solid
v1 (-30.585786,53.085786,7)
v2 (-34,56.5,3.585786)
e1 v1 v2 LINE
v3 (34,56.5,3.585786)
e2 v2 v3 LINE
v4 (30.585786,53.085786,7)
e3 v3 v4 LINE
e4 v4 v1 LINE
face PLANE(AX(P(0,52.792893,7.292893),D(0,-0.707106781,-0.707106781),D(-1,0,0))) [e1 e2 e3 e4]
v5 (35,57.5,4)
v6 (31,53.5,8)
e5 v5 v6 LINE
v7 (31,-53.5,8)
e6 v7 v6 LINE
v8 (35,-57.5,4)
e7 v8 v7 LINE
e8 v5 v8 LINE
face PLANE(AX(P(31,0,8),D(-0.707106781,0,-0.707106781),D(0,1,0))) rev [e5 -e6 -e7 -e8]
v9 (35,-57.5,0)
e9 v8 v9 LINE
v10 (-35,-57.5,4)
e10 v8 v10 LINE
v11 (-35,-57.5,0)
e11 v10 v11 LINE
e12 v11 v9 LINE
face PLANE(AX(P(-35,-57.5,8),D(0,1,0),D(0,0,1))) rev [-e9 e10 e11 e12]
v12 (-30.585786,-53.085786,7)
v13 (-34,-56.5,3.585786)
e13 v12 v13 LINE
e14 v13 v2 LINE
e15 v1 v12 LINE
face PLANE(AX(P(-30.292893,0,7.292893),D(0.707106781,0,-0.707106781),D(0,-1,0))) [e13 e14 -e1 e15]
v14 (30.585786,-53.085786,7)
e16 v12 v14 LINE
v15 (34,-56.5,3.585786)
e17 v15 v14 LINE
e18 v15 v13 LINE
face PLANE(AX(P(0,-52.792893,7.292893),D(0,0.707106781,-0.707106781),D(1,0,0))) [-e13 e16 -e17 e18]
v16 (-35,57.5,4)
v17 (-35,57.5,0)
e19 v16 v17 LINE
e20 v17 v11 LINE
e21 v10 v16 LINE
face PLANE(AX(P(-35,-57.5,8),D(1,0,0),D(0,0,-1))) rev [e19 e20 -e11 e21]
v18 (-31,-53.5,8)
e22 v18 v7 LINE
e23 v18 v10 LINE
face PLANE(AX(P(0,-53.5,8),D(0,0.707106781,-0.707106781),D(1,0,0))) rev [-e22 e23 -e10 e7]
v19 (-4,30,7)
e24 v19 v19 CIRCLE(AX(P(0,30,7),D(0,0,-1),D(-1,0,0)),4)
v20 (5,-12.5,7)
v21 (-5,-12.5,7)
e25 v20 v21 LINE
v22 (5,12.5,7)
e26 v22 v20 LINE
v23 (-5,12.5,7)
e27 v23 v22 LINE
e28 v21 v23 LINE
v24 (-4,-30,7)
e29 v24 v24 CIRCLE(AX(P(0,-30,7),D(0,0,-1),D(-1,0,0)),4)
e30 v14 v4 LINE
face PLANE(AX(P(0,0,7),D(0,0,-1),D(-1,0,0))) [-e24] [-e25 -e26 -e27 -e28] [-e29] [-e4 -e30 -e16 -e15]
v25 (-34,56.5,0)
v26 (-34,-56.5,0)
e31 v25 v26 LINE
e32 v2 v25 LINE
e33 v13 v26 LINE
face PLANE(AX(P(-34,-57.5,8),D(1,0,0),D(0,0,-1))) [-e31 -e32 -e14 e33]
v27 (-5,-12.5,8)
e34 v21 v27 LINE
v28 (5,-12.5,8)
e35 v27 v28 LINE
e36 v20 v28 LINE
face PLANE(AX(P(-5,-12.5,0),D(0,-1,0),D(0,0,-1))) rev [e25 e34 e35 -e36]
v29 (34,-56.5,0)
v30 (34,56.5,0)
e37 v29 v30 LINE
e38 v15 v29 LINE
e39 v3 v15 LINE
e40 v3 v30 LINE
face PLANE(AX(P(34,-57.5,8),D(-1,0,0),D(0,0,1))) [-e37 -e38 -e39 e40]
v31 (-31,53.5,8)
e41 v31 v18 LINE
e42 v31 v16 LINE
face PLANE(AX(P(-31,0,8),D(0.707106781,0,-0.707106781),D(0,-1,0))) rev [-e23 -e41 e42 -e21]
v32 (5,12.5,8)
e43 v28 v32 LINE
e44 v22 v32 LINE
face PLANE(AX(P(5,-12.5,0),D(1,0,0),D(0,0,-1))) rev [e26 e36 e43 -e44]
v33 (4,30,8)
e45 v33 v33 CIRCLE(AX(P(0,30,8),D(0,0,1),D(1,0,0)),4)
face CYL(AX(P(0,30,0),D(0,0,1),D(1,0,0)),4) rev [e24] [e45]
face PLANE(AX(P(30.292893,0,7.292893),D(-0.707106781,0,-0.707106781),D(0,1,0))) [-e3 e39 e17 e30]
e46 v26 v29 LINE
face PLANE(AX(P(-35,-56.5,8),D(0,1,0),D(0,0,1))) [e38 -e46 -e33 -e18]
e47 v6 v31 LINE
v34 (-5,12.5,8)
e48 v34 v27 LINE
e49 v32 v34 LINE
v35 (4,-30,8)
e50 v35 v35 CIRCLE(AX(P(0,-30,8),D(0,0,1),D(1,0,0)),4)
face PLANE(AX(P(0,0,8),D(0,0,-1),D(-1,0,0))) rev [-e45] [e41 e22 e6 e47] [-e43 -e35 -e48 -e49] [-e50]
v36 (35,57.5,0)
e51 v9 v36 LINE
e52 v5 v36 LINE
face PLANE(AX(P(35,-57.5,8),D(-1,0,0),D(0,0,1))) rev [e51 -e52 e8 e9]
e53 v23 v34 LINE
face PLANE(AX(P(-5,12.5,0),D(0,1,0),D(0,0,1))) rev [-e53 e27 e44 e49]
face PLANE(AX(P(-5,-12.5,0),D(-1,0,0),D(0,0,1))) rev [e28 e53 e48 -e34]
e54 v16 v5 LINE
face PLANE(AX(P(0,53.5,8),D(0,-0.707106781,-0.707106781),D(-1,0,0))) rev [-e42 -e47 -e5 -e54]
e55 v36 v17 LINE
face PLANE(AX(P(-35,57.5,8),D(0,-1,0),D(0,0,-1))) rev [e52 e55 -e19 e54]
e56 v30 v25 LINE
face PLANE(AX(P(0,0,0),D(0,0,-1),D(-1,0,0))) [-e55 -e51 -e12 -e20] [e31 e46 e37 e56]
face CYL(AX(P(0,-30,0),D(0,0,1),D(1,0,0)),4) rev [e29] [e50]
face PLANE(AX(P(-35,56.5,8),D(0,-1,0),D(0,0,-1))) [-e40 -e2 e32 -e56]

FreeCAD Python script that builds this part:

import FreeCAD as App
import Part
import Sketcher
Q = App.Units.Quantity


def edges_at(feature, points):
    """Names of the edges that pass closest to the given points."""
    edges = feature.Shape.Edges
    near = lambda p: min(range(len(edges)), key=lambda i: edges[i].distToShape(Part.Vertex(*p))[0])
    return sorted({f"Edge{near(p) + 1}" for p in points})


def faces_at(feature, points):
    """Names of the faces that lie closest to the given points."""
    faces = feature.Shape.Faces
    near = lambda p: min(range(len(faces)), key=lambda i: faces[i].distToShape(Part.Vertex(*p))[0])
    return sorted({f"Face{near(p) + 1}" for p in points})


def add_polygon(sketch, points):
    """Adds a closed chain of lines whose ends are joined by coincident constraints."""
    first, n = sketch.GeometryCount, len(points)
    for a, b in zip(points, points[1:] + points[:1]):
        sketch.addGeometry(Part.LineSegment(App.Vector(*a, 0), App.Vector(*b, 0)), False)
    for i in range(n):
        sketch.addConstraint(Sketcher.Constraint("Coincident", first + i, 2, first + (i + 1) % n, 1))

doc = App.newDocument("Part")
body = doc.addObject("PartDesign::Body", "Body")

# Sketch on XY plane
sketch1 = doc.addObject("Sketcher::SketchObject", "Sketch")
body.addObject(sketch1)
sketch1.AttachmentSupport = (doc.XY_Plane, [""])
sketch1.MapMode = "FlatFace"
add_polygon(sketch1, [(-35, 57.5), (-35, -57.5), (35, -57.5), (35, 57.5)])  # lines 0-3
sketch1.addConstraint(Sketcher.Constraint("Vertical", 0))
sketch1.addConstraint(Sketcher.Constraint("Horizontal", 1))
sketch1.addConstraint(Sketcher.Constraint("Vertical", 2))
sketch1.addConstraint(Sketcher.Constraint("Horizontal", 3))
sketch1.addConstraint(Sketcher.Constraint("Symmetric", 0, 2, 2, 2, -1, 1))
sketch1.addConstraint(Sketcher.Constraint("DistanceX", 1, 1, 1, 2, Q("70 mm")))
sketch1.addConstraint(Sketcher.Constraint("DistanceY", 0, 2, 0, 1, Q("115 mm")))
pad1 = doc.addObject("PartDesign::Pad", "Pad")
body.addObject(pad1)
pad1.Profile = sketch1
pad1.Length = 8
doc.recompute()

chamfer = doc.addObject("PartDesign::Chamfer", "Chamfer")
body.addObject(chamfer)
chamfer.Base = (pad1, edges_at(pad1, [
    (-35, 0, 8),
    (0, -57.5, 8),
    (35, 0, 8),
    (0, 57.5, 8),
]))
chamfer.Size = 4
doc.recompute()

thickness = doc.addObject("PartDesign::Thickness", "Thickness")
body.addObject(thickness)
thickness.Base = (chamfer, faces_at(chamfer, [(0, 0, 0)]))
thickness.Value = 1
thickness.Reversed = True
thickness.Join = "Intersection"

# Sketch on XY plane
sketch2 = doc.addObject("Sketcher::SketchObject", "Sketch001")
body.addObject(sketch2)
sketch2.AttachmentSupport = (doc.XY_Plane, [""])
sketch2.MapMode = "FlatFace"
sketch2.AttachmentOffset = App.Placement(App.Vector(0, 0, 8), App.Rotation())
sketch2.addGeometry(Part.Circle(App.Vector(0, 30, 0), App.Vector(0, 0, 1), 4), False)  # 0
sketch2.addGeometry(Part.Circle(App.Vector(0, -30, 0), App.Vector(0, 0, 1), 4), False)  # 1
add_polygon(sketch2, [(-5, 12.5), (-5, -12.5), (5, -12.5), (5, 12.5)])  # lines 2-5
sketch2.addConstraint(Sketcher.Constraint("Vertical", 2))
sketch2.addConstraint(Sketcher.Constraint("Horizontal", 3))
sketch2.addConstraint(Sketcher.Constraint("Vertical", 4))
sketch2.addConstraint(Sketcher.Constraint("Horizontal", 5))
sketch2.addConstraint(Sketcher.Constraint("Equal", 0, 1))
sketch2.addConstraint(Sketcher.Constraint("Symmetric", 0, 3, 1, 3, -1, 1))
sketch2.addConstraint(Sketcher.Constraint("Symmetric", 2, 2, 4, 2, -1, 1))
sketch2.addConstraint(Sketcher.Constraint("PointOnObject", 0, 3, -2))
sketch2.addConstraint(Sketcher.Constraint("Diameter", 0, Q("8 mm")))
sketch2.addConstraint(Sketcher.Constraint("DistanceX", 3, 1, 3, 2, Q("10 mm")))
sketch2.addConstraint(Sketcher.Constraint("DistanceY", 2, 2, 2, 1, Q("25 mm")))
sketch2.addConstraint(Sketcher.Constraint("DistanceY", -1, 1, 0, 3, Q("30 mm")))
pocket1 = doc.addObject("PartDesign::Pocket", "Pocket")
body.addObject(pocket1)
pocket1.Profile = sketch2
pocket1.Type = "ThroughAll"

doc.recompute()
